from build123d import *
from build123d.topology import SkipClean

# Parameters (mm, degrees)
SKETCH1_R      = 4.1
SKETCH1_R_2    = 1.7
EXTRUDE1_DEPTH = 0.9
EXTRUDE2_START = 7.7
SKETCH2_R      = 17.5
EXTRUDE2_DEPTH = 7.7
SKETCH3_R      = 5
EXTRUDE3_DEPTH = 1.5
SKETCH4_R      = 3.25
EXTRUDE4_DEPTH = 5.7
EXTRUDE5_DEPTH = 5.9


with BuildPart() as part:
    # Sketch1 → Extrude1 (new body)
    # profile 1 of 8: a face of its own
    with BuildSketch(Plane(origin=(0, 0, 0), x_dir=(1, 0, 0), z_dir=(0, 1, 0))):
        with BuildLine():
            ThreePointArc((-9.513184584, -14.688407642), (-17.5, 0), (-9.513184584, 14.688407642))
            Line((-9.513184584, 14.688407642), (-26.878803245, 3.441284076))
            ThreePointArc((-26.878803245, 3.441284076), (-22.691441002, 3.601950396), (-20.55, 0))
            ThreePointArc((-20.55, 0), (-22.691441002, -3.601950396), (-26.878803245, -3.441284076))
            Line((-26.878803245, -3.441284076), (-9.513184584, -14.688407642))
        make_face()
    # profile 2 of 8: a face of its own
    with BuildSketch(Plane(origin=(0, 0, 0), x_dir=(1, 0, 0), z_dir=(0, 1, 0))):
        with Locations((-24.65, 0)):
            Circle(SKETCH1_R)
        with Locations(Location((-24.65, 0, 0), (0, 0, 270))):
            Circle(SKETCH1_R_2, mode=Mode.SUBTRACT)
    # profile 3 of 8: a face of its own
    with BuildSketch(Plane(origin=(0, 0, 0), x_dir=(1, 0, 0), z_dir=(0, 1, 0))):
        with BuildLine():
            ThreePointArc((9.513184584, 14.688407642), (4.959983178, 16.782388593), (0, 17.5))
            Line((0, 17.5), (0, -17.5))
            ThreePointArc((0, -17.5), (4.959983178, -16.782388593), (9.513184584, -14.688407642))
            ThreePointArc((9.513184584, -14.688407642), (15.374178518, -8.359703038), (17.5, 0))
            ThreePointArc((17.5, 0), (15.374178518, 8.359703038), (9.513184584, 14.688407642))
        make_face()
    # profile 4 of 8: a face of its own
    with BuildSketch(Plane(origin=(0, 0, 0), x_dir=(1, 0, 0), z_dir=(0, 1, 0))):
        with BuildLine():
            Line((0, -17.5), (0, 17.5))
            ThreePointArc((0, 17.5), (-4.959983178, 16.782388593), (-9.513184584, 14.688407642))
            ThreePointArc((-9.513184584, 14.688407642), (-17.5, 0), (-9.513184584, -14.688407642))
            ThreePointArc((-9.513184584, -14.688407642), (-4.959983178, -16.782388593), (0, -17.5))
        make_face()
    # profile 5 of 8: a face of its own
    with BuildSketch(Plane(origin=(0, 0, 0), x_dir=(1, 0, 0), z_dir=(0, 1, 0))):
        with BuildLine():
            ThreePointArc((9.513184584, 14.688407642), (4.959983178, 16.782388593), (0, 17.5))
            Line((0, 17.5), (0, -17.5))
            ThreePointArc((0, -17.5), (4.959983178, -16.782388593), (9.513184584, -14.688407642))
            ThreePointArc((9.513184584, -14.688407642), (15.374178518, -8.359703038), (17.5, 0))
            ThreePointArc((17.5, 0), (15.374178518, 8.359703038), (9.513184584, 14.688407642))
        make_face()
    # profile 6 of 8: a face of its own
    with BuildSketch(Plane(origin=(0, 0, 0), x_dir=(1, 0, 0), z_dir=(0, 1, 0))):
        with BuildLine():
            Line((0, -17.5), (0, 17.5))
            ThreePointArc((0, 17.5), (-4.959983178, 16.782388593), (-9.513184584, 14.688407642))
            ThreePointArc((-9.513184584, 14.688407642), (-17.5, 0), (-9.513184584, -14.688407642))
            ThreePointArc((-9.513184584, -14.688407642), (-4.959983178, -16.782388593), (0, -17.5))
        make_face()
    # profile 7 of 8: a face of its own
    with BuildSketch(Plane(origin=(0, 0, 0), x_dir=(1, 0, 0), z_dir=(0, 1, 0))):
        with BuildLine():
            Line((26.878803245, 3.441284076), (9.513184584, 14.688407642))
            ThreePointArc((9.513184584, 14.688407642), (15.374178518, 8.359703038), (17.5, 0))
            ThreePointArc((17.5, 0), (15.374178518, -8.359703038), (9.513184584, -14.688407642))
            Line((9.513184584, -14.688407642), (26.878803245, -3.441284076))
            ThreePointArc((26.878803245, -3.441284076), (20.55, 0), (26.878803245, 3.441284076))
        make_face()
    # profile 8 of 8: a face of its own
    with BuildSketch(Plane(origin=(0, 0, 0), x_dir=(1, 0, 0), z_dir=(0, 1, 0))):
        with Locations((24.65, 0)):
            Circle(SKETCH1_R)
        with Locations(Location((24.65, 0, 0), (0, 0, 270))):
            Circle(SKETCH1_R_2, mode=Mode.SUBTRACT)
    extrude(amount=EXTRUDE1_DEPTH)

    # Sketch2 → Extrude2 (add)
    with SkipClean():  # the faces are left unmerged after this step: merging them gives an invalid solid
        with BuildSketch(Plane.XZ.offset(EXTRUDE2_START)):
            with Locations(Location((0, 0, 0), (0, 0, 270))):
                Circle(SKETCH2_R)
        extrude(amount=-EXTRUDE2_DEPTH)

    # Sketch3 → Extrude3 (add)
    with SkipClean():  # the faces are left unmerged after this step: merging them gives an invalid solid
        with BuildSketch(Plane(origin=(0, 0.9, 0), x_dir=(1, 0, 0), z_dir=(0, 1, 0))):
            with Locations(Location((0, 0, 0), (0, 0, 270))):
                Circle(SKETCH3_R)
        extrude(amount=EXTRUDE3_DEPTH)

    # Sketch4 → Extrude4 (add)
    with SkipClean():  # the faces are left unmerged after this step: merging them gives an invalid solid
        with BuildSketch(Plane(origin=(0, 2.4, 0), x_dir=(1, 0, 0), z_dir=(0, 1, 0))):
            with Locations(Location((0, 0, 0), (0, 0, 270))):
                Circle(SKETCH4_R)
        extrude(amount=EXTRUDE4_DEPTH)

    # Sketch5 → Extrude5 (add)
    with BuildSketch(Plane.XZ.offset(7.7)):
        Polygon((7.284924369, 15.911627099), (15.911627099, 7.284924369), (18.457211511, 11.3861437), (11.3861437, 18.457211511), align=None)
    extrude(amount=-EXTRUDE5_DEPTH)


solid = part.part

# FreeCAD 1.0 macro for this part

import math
import FreeCAD as App
import Part
import Sketcher
Q = App.Units.Quantity


def add_polygon(sketch, points):
    """Adds a closed chain of lines whose ends are joined by coincident constraints."""
    first, n = sketch.GeometryCount, len(points)
    for a, b in zip(points, points[1:] + points[:1]):
        sketch.addGeometry(Part.LineSegment(App.Vector(*a, 0), App.Vector(*b, 0)), False)
    for i in range(n):
        sketch.addConstraint(Sketcher.Constraint("Coincident", first + i, 2, first + (i + 1) % n, 1))

doc = App.newDocument("Part")
body = doc.addObject("PartDesign::Body", "Body")

sketch1 = doc.addObject("Sketcher::SketchObject", "Sketch")
body.addObject(sketch1)
sketch1.AttachmentSupport = (doc.XZ_Plane, [""])
sketch1.MapMode = "FlatFace"
sketch1.addGeometry(Part.LineSegment(App.Vector(-9.5, -14.7, 0), App.Vector(-26.9, -3.4, 0)), False)
sketch1.addGeometry(Part.ArcOfCircle(Part.Circle(App.Vector(-24.6, 0, 0), App.Vector(0, 0, 1), 4.1), math.radians(123), math.radians(237)), False)
sketch1.addGeometry(Part.LineSegment(App.Vector(-26.9, 3.4, 0), App.Vector(-9.5, 14.7, 0)), False)
sketch1.addGeometry(Part.ArcOfCircle(Part.Circle(App.Vector(0, 0, 0), App.Vector(0, 0, 1), 17.5), math.radians(90), math.radians(123)), False)
sketch1.addGeometry(Part.ArcOfCircle(Part.Circle(App.Vector(0, 0, 0), App.Vector(0, 0, 1), 17.5), math.radians(57), math.radians(90)), False)
sketch1.addGeometry(Part.LineSegment(App.Vector(9.5, 14.7, 0), App.Vector(26.9, 3.4, 0)), False)
sketch1.addGeometry(Part.ArcOfCircle(Part.Circle(App.Vector(24.6, 0, 0), App.Vector(0, 0, 1), 4.1), math.radians(-57), math.radians(57)), False)
sketch1.addGeometry(Part.LineSegment(App.Vector(26.9, -3.4, 0), App.Vector(9.5, -14.7, 0)), False)
sketch1.addGeometry(Part.ArcOfCircle(Part.Circle(App.Vector(0, 0, 0), App.Vector(0, 0, 1), 17.5), math.radians(-90), math.radians(-57)), False)
sketch1.addGeometry(Part.ArcOfCircle(Part.Circle(App.Vector(0, 0, 0), App.Vector(0, 0, 1), 17.5), math.radians(-123), math.radians(-90)), False)
sketch1.addGeometry(Part.Circle(App.Vector(-24.6, 0, 0), App.Vector(0, 0, 1), 1.7), False)
sketch1.addGeometry(Part.Circle(App.Vector(24.6, 0, 0), App.Vector(0, 0, 1), 1.7), False)
sketch1.addConstraint(Sketcher.Constraint("Tangent", 0, 2, 1, 2))
sketch1.addConstraint(Sketcher.Constraint("Tangent", 1, 1, 2, 1))
sketch1.addConstraint(Sketcher.Constraint("Tangent", 2, 2, 3, 2))
sketch1.addConstraint(Sketcher.Constraint("Tangent", 3, 1, 4, 2))
sketch1.addConstraint(Sketcher.Constraint("Tangent", 4, 1, 5, 1))
sketch1.addConstraint(Sketcher.Constraint("Tangent", 5, 2, 6, 2))
sketch1.addConstraint(Sketcher.Constraint("Tangent", 6, 1, 7, 1))
sketch1.addConstraint(Sketcher.Constraint("Tangent", 7, 2, 8, 2))
sketch1.addConstraint(Sketcher.Constraint("Tangent", 8, 1, 9, 2))
sketch1.addConstraint(Sketcher.Constraint("Tangent", 9, 1, 0, 1))
sketch1.addConstraint(Sketcher.Constraint("Coincident", 3, 3, -1, 1))
sketch1.addConstraint(Sketcher.Constraint("Coincident", 8, 3, -1, 1))
sketch1.addConstraint(Sketcher.Constraint("Coincident", 10, 3, 1, 3))
sketch1.addConstraint(Sketcher.Constraint("Coincident", 11, 3, 6, 3))
sketch1.addConstraint(Sketcher.Constraint("Equal", 3, 4))
sketch1.addConstraint(Sketcher.Constraint("Equal", 1, 6))
sketch1.addConstraint(Sketcher.Constraint("Equal", 4, 8))
sketch1.addConstraint(Sketcher.Constraint("Equal", 8, 9))
sketch1.addConstraint(Sketcher.Constraint("Equal", 10, 11))
sketch1.addConstraint(Sketcher.Constraint("Symmetric", 1, 3, 6, 3, -1, 1))
sketch1.addConstraint(Sketcher.Constraint("PointOnObject", 1, 3, -1))
sketch1.addConstraint(Sketcher.Constraint("PointOnObject", 3, 1, -2))
sketch1.addConstraint(Sketcher.Constraint("PointOnObject", 8, 1, -2))
sketch1.addConstraint(Sketcher.Constraint("Diameter", 10, 3.4))
sketch1.addConstraint(Sketcher.Constraint("Radius", 1, 4.1))
sketch1.addConstraint(Sketcher.Constraint("Radius", 3, 17.5))
sketch1.addConstraint(Sketcher.Constraint("DistanceX", 1, 3, 6, 3, 49.3))
pad1 = doc.addObject("PartDesign::Pad", "Pad")
body.addObject(pad1)
pad1.Profile = sketch1
pad1.Length = 0.9
pad1.Reversed = True

sketch2 = doc.addObject("Sketcher::SketchObject", "Sketch001")
body.addObject(sketch2)
sketch2.AttachmentSupport = (doc.XZ_Plane, [""])
sketch2.MapMode = "FlatFace"
sketch2.AttachmentOffset = App.Placement(App.Vector(0, 0, 7.7), App.Rotation())
sketch2.addGeometry(Part.Circle(App.Vector(0, 0, 0), App.Vector(0, 0, 1), 18), False)
sketch2.addConstraint(Sketcher.Constraint("Coincident", 0, 3, -1, 1))
sketch2.addConstraint(Sketcher.Constraint("Diameter", 0, 35.0))
pad2 = doc.addObject("PartDesign::Pad", "Pad001")
body.addObject(pad2)
pad2.Profile = sketch2
pad2.Length = 7.7
pad2.Reversed = True

sketch3 = doc.addObject("Sketcher::SketchObject", "Sketch002")
body.addObject(sketch3)
sketch3.AttachmentSupport = (doc.XZ_Plane, [""])
sketch3.MapMode = "FlatFace"
sketch3.AttachmentOffset = App.Placement(App.Vector(0, 0, -0.9), App.Rotation())
sketch3.addGeometry(Part.Circle(App.Vector(0, 0, 0), App.Vector(0, 0, 1), 5), False)
sketch3.addConstraint(Sketcher.Constraint("Coincident", 0, 3, -1, 1))
sketch3.addConstraint(Sketcher.Constraint("Diameter", 0, 10.0))
pad3 = doc.addObject("PartDesign::Pad", "Pad002")
body.addObject(pad3)
pad3.Profile = sketch3
pad3.Length = 1.5
pad3.Reversed = True

sketch4 = doc.addObject("Sketcher::SketchObject", "Sketch003")
body.addObject(sketch4)
sketch4.AttachmentSupport = (doc.XZ_Plane, [""])
sketch4.MapMode = "FlatFace"
sketch4.AttachmentOffset = App.Placement(App.Vector(0, 0, -2.4), App.Rotation())
sketch4.addGeometry(Part.Circle(App.Vector(0, 0, 0), App.Vector(0, 0, 1), 3.2), False)
sketch4.addConstraint(Sketcher.Constraint("Coincident", 0, 3, -1, 1))
sketch4.addConstraint(Sketcher.Constraint("Diameter", 0, 6.5))
pad4 = doc.addObject("PartDesign::Pad", "Pad003")
body.addObject(pad4)
pad4.Profile = sketch4
pad4.Length = 5.7
pad4.Reversed = True

sketch5 = doc.addObject("Sketcher::SketchObject", "Sketch004")
body.addObject(sketch5)
sketch5.AttachmentSupport = (doc.XZ_Plane, [""])
sketch5.MapMode = "FlatFace"
sketch5.AttachmentOffset = App.Placement(App.Vector(0, 0, 7.7), App.Rotation())
add_polygon(sketch5, [(7.3, 15.9), (15.9, 7.3), (18.5, 11.4), (11.4, 18.5)])
sketch5.addConstraint(Sketcher.Constraint("Parallel", 0, 2))
sketch5.addConstraint(Sketcher.Constraint("Equal", 1, 3))
sketch5.addConstraint(Sketcher.Constraint("Angle", 0, Q("-45 deg")))
sketch5.addConstraint(Sketcher.Constraint("Distance", 2, 10.0))
sketch5.addConstraint(Sketcher.Constraint("Distance", 0, 12.2))
sketch5.addConstraint(Sketcher.Constraint("DistanceX", -1, 1, 1, 2, 18.457212))
sketch5.addConstraint(Sketcher.Constraint("DistanceY", -1, 1, 2, 2, 18.457212))
sketch5.addConstraint(Sketcher.Constraint("DistanceY", 0, 2, 1, 2, 4.101219))
pad5 = doc.addObject("PartDesign::Pad", "Pad004")
body.addObject(pad5)
pad5.Profile = sketch5
pad5.Length = 5.9
pad5.Reversed = True

doc.recompute()
